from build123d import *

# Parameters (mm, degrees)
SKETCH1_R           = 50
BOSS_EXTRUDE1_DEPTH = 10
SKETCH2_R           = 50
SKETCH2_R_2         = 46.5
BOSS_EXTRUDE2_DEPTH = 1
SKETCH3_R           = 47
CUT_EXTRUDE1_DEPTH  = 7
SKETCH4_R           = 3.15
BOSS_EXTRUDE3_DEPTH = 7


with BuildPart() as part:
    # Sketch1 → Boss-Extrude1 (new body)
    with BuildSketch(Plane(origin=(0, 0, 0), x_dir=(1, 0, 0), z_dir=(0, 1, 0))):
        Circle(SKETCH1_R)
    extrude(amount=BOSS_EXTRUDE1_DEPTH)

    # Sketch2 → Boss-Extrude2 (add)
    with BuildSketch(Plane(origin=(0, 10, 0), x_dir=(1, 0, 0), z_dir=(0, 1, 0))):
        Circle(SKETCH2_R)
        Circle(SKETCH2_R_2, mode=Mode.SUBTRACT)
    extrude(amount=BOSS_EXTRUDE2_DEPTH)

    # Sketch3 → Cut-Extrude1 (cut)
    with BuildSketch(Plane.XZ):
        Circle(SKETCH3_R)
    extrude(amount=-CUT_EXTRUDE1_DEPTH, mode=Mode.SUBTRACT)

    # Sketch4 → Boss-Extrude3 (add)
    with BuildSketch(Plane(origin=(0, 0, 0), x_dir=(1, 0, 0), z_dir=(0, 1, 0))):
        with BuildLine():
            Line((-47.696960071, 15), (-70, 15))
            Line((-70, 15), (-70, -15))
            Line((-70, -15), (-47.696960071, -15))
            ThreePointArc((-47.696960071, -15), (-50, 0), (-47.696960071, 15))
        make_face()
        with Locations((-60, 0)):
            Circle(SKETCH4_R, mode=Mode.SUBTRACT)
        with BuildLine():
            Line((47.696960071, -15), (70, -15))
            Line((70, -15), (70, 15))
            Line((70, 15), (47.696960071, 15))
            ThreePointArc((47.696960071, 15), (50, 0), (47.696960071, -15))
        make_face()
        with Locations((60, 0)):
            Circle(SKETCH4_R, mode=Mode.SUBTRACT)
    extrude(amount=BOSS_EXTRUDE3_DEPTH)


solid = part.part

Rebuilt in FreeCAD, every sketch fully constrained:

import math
import FreeCAD as App
import Part
import Sketcher

V = App.Vector
Q = App.Units.Quantity

doc = App.newDocument("Part")
body = doc.addObject("PartDesign::Body", "Body")

# Sketch on XZ plane
sketch1 = body.newObject("Sketcher::SketchObject", "Sketch")
sketch1.AttachmentSupport = (doc.getObject("XZ_Plane"), [""])
sketch1.MapMode = "FlatFace"
sketch1.addGeometry(Part.Circle(V(0, 0, 0), V(0, 0, 1), 50), False)
sketch1.addConstraint([
    Sketcher.Constraint("Coincident", 0, 3, -1, 1),
    Sketcher.Constraint("Diameter", 0, Q("100 mm")),
])
pad1 = body.newObject("PartDesign::Pad", "Pad")
pad1.Profile = sketch1
pad1.Length = 10
pad1.Reversed = True

# Sketch on XZ plane
sketch2 = body.newObject("Sketcher::SketchObject", "Sketch001")
sketch2.AttachmentSupport = (doc.getObject("XZ_Plane"), [""])
sketch2.MapMode = "FlatFace"
sketch2.AttachmentOffset = App.Placement(V(0, 0, -10), App.Rotation())
sketch2.addGeometry([
    Part.Circle(V(0, 0, 0), V(0, 0, 1), 50),
    Part.Circle(V(0, 0, 0), V(0, 0, 1), 46),
], False)
sketch2.addConstraint([
    Sketcher.Constraint("Coincident", 0, 3, -1, 1),
    Sketcher.Constraint("Coincident", 1, 3, -1, 1),
    Sketcher.Constraint("Diameter", 0, Q("100 mm")),
    Sketcher.Constraint("Diameter", 1, Q("93 mm")),
])
pad2 = body.newObject("PartDesign::Pad", "Pad001")
pad2.Profile = sketch2
pad2.Length = 1
pad2.Reversed = True

# Sketch on XZ plane
sketch3 = body.newObject("Sketcher::SketchObject", "Sketch002")
sketch3.AttachmentSupport = (doc.getObject("XZ_Plane"), [""])
sketch3.MapMode = "FlatFace"
sketch3.addGeometry(Part.Circle(V(0, 0, 0), V(0, 0, 1), 47), False)
sketch3.addConstraint([
    Sketcher.Constraint("Coincident", 0, 3, -1, 1),
    Sketcher.Constraint("Diameter", 0, Q("94 mm")),
])
pocket1 = body.newObject("PartDesign::Pocket", "Pocket")
pocket1.Profile = sketch3
pocket1.Length = 7

# Sketch on XZ plane
sketch4 = body.newObject("Sketcher::SketchObject", "Sketch003")
sketch4.AttachmentSupport = (doc.getObject("XZ_Plane"), [""])
sketch4.MapMode = "FlatFace"
sketch4.addGeometry([
    Part.LineSegment(V(-47.7, -15, 0), V(-70, -15, 0)),  # 0
    Part.LineSegment(V(-70, -15, 0), V(-70, 15, 0)),  # 1
    Part.LineSegment(V(-70, 15, 0), V(-47.7, 15, 0)),  # 2
    Part.ArcOfCircle(Part.Circle(V(0, 0, 0), V(0, 0, 1), 50), math.radians(163), math.radians(197)),  # 3
    Part.Circle(V(-60, 0, 0), V(0, 0, 1), 3.1),  # 4
    Part.LineSegment(V(47.7, 15, 0), V(70, 15, 0)),  # 5
    Part.LineSegment(V(70, 15, 0), V(70, -15, 0)),  # 6
    Part.LineSegment(V(70, -15, 0), V(47.7, -15, 0)),  # 7
    Part.ArcOfCircle(Part.Circle(V(0, 0, 0), V(0, 0, 1), 50), math.radians(-17), math.radians(17)),  # 8
    Part.Circle(V(60, 0, 0), V(0, 0, 1), 3.1),  # 9
], False)
sketch4.addConstraint([
    Sketcher.Constraint("Coincident", 0, 2, 1, 1),
    Sketcher.Constraint("Coincident", 1, 2, 2, 1),
    Sketcher.Constraint("Coincident", 2, 2, 3, 1),
    Sketcher.Constraint("Coincident", 3, 2, 0, 1),
    Sketcher.Constraint("Coincident", 5, 2, 6, 1),
    Sketcher.Constraint("Coincident", 6, 2, 7, 1),
    Sketcher.Constraint("Coincident", 7, 2, 8, 1),
    Sketcher.Constraint("Coincident", 8, 2, 5, 1),
    Sketcher.Constraint("Horizontal", 0),
    Sketcher.Constraint("Vertical", 1),
    Sketcher.Constraint("Horizontal", 2),
    Sketcher.Constraint("Horizontal", 5),
    Sketcher.Constraint("Vertical", 6),
    Sketcher.Constraint("Horizontal", 7),
    Sketcher.Constraint("Coincident", 3, 3, -1, 1),
    Sketcher.Constraint("Coincident", 8, 3, -1, 1),
    Sketcher.Constraint("Equal", 3, 8),
    Sketcher.Constraint("Equal", 4, 9),
    Sketcher.Constraint("Symmetric", 4, 3, 9, 3, -1, 1),
    Sketcher.Constraint("Symmetric", 0, 2, 5, 2, -1, 1),
    Sketcher.Constraint("PointOnObject", 4, 3, -1),
    Sketcher.Constraint("Horizontal", 2, 2, 5, 2),
    Sketcher.Constraint("Horizontal", 3, 2, 6, 2),
    Sketcher.Constraint("Radius", 3, Q("50 mm")),
    Sketcher.Constraint("Diameter", 4, Q("6.3 mm")),
    Sketcher.Constraint("DistanceY", 1, 1, 1, 2, Q("30 mm")),
    Sketcher.Constraint("DistanceX", 4, 3, -1, 1, Q("60 mm")),
    Sketcher.Constraint("DistanceX", 0, 2, -1, 1, Q("70 mm")),
])
pad3 = body.newObject("PartDesign::Pad", "Pad002")
pad3.Profile = sketch4
pad3.Length = 7
pad3.Reversed = True

doc.recompute()
